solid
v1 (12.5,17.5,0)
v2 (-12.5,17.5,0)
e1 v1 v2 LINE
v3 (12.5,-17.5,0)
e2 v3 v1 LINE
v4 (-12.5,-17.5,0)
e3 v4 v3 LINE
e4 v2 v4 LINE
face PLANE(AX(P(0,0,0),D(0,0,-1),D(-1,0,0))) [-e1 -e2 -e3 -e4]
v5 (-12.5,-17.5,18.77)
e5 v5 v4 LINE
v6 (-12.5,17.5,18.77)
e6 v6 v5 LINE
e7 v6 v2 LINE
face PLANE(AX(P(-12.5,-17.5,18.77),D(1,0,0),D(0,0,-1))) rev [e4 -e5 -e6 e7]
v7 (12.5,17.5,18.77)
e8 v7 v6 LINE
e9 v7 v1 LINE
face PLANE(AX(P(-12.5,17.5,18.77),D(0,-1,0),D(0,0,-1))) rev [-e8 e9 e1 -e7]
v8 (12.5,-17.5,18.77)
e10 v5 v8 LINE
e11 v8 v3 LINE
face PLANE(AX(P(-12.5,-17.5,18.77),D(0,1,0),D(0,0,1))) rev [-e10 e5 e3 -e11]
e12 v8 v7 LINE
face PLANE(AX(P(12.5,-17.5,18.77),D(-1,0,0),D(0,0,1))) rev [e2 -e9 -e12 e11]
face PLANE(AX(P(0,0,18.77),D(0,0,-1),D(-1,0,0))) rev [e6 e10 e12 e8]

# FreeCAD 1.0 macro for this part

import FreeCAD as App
import Part
import Sketcher
from FreeCAD import Vector


def add_polygon(sketch, points):
    """Adds a closed chain of lines whose ends are joined by coincident constraints."""
    first, n = sketch.GeometryCount, len(points)
    for a, b in zip(points, points[1:] + points[:1]):
        sketch.addGeometry(Part.LineSegment(App.Vector(*a, 0), App.Vector(*b, 0)), False)
    for i in range(n):
        sketch.addConstraint(Sketcher.Constraint("Coincident", first + i, 2, first + (i + 1) % n, 1))

doc = App.newDocument("Part")
body = doc.addObject("PartDesign::Body", "Body")

# Sketch on XY plane
sketch1 = doc.addObject("Sketcher::SketchObject", "Sketch")
body.addObject(sketch1)
sketch1.AttachmentSupport = (doc.XY_Plane, [""])
sketch1.MapMode = "FlatFace"
add_polygon(sketch1, [(-12.5, 17.5), (-12.5, -17.5), (12.5, -17.5), (12.5, 17.5)])  # lines 0-3
sketch1.addConstraint([
    Sketcher.Constraint("Vertical", 0),
    Sketcher.Constraint("Horizontal", 1),
    Sketcher.Constraint("Vertical", 2),
    Sketcher.Constraint("Horizontal", 3),
    Sketcher.Constraint("Symmetric", 0, 2, 2, 2, -1, 1),
    Sketcher.Constraint("DistanceX", 1, 1, 1, 2, 25.0),
    Sketcher.Constraint("DistanceY", 0, 2, 0, 1, 35.0),
])
pad1 = doc.addObject("PartDesign::Pad", "Pad")
body.addObject(pad1)
pad1.Profile = sketch1
pad1.Length = 18.77

doc.recompute()
